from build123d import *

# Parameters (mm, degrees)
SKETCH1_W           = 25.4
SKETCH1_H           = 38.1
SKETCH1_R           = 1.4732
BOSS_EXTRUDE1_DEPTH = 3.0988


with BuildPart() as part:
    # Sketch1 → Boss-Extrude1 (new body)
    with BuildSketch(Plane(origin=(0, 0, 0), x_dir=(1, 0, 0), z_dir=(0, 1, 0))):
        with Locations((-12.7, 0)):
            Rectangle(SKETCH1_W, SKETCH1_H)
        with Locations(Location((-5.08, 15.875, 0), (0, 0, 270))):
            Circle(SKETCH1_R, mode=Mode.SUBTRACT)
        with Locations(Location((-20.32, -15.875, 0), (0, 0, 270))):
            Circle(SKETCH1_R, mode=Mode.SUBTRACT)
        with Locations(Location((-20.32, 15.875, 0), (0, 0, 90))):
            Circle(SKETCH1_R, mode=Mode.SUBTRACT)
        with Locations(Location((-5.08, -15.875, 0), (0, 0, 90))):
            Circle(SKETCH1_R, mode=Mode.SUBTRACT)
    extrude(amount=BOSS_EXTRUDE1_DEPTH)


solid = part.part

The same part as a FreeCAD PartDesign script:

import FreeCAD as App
import Part
import Sketcher
Q = App.Units.Quantity

doc = App.newDocument("Part")
body = doc.addObject("PartDesign::Body", "Body")

# Sketch on XZ plane
sketch1 = doc.addObject("Sketcher::SketchObject", "Sketch")
body.addObject(sketch1)
sketch1.AttachmentSupport = (doc.XZ_Plane, [""])
sketch1.MapMode = "FlatFace"
sketch1.addGeometry([
    Part.LineSegment(App.Vector(-25.4, -19.1, 0), App.Vector(-25.4, 19.1, 0)),  # 0
    Part.LineSegment(App.Vector(-25.4, 19.1, 0), App.Vector(0, 19.1, 0)),  # 1
    Part.LineSegment(App.Vector(0, 19.1, 0), App.Vector(0, -19.1, 0)),  # 2
    Part.LineSegment(App.Vector(0, -19.1, 0), App.Vector(-25.4, -19.1, 0)),  # 3
    Part.Circle(App.Vector(-20.3, 15.9, 0), App.Vector(0, 0, 1), 1.5),  # 4
    Part.Circle(App.Vector(-5.1, 15.9, 0), App.Vector(0, 0, 1), 1.5),  # 5
    Part.Circle(App.Vector(-20.3, -15.9, 0), App.Vector(0, 0, 1), 1.5),  # 6
    Part.Circle(App.Vector(-5.1, -15.9, 0), App.Vector(0, 0, 1), 1.5),  # 7
], False)
sketch1.addConstraint([
    Sketcher.Constraint("Coincident", 0, 2, 1, 1),
    Sketcher.Constraint("Coincident", 1, 2, 2, 1),
    Sketcher.Constraint("Coincident", 2, 2, 3, 1),
    Sketcher.Constraint("Coincident", 3, 2, 0, 1),
    Sketcher.Constraint("Vertical", 0),
    Sketcher.Constraint("Horizontal", 1),
    Sketcher.Constraint("Vertical", 2),
    Sketcher.Constraint("Horizontal", 3),
    Sketcher.Constraint("Equal", 4, 5),
    Sketcher.Constraint("Equal", 5, 6),
    Sketcher.Constraint("Equal", 6, 7),
    Sketcher.Constraint("Symmetric", 1, 2, 2, 2, -1, 1),
    Sketcher.Constraint("Symmetric", 4, 3, 6, 3, -1),
    Sketcher.Constraint("Symmetric", 5, 3, 7, 3, -1),
    Sketcher.Constraint("Horizontal", 4, 3, 5, 3),
    Sketcher.Constraint("DistanceX", 1, 1, 1, 2, Q("1 in")),
    Sketcher.Constraint("Diameter", 4, Q("0.116 in")),
    Sketcher.Constraint("DistanceY", 0, 1, 0, 2, Q("1.5 in")),
    Sketcher.Constraint("DistanceX", 4, 3, -1, 1, Q("0.8 in")),
    Sketcher.Constraint("DistanceX", 5, 3, -1, 1, Q("0.2 in")),
    Sketcher.Constraint("DistanceY", 6, 3, 4, 3, Q("1.25 in")),
])
pad1 = doc.addObject("PartDesign::Pad", "Pad")
body.addObject(pad1)
pad1.Profile = sketch1
pad1.Length = Q("0.122 in")
pad1.Reversed = True

doc.recompute()
